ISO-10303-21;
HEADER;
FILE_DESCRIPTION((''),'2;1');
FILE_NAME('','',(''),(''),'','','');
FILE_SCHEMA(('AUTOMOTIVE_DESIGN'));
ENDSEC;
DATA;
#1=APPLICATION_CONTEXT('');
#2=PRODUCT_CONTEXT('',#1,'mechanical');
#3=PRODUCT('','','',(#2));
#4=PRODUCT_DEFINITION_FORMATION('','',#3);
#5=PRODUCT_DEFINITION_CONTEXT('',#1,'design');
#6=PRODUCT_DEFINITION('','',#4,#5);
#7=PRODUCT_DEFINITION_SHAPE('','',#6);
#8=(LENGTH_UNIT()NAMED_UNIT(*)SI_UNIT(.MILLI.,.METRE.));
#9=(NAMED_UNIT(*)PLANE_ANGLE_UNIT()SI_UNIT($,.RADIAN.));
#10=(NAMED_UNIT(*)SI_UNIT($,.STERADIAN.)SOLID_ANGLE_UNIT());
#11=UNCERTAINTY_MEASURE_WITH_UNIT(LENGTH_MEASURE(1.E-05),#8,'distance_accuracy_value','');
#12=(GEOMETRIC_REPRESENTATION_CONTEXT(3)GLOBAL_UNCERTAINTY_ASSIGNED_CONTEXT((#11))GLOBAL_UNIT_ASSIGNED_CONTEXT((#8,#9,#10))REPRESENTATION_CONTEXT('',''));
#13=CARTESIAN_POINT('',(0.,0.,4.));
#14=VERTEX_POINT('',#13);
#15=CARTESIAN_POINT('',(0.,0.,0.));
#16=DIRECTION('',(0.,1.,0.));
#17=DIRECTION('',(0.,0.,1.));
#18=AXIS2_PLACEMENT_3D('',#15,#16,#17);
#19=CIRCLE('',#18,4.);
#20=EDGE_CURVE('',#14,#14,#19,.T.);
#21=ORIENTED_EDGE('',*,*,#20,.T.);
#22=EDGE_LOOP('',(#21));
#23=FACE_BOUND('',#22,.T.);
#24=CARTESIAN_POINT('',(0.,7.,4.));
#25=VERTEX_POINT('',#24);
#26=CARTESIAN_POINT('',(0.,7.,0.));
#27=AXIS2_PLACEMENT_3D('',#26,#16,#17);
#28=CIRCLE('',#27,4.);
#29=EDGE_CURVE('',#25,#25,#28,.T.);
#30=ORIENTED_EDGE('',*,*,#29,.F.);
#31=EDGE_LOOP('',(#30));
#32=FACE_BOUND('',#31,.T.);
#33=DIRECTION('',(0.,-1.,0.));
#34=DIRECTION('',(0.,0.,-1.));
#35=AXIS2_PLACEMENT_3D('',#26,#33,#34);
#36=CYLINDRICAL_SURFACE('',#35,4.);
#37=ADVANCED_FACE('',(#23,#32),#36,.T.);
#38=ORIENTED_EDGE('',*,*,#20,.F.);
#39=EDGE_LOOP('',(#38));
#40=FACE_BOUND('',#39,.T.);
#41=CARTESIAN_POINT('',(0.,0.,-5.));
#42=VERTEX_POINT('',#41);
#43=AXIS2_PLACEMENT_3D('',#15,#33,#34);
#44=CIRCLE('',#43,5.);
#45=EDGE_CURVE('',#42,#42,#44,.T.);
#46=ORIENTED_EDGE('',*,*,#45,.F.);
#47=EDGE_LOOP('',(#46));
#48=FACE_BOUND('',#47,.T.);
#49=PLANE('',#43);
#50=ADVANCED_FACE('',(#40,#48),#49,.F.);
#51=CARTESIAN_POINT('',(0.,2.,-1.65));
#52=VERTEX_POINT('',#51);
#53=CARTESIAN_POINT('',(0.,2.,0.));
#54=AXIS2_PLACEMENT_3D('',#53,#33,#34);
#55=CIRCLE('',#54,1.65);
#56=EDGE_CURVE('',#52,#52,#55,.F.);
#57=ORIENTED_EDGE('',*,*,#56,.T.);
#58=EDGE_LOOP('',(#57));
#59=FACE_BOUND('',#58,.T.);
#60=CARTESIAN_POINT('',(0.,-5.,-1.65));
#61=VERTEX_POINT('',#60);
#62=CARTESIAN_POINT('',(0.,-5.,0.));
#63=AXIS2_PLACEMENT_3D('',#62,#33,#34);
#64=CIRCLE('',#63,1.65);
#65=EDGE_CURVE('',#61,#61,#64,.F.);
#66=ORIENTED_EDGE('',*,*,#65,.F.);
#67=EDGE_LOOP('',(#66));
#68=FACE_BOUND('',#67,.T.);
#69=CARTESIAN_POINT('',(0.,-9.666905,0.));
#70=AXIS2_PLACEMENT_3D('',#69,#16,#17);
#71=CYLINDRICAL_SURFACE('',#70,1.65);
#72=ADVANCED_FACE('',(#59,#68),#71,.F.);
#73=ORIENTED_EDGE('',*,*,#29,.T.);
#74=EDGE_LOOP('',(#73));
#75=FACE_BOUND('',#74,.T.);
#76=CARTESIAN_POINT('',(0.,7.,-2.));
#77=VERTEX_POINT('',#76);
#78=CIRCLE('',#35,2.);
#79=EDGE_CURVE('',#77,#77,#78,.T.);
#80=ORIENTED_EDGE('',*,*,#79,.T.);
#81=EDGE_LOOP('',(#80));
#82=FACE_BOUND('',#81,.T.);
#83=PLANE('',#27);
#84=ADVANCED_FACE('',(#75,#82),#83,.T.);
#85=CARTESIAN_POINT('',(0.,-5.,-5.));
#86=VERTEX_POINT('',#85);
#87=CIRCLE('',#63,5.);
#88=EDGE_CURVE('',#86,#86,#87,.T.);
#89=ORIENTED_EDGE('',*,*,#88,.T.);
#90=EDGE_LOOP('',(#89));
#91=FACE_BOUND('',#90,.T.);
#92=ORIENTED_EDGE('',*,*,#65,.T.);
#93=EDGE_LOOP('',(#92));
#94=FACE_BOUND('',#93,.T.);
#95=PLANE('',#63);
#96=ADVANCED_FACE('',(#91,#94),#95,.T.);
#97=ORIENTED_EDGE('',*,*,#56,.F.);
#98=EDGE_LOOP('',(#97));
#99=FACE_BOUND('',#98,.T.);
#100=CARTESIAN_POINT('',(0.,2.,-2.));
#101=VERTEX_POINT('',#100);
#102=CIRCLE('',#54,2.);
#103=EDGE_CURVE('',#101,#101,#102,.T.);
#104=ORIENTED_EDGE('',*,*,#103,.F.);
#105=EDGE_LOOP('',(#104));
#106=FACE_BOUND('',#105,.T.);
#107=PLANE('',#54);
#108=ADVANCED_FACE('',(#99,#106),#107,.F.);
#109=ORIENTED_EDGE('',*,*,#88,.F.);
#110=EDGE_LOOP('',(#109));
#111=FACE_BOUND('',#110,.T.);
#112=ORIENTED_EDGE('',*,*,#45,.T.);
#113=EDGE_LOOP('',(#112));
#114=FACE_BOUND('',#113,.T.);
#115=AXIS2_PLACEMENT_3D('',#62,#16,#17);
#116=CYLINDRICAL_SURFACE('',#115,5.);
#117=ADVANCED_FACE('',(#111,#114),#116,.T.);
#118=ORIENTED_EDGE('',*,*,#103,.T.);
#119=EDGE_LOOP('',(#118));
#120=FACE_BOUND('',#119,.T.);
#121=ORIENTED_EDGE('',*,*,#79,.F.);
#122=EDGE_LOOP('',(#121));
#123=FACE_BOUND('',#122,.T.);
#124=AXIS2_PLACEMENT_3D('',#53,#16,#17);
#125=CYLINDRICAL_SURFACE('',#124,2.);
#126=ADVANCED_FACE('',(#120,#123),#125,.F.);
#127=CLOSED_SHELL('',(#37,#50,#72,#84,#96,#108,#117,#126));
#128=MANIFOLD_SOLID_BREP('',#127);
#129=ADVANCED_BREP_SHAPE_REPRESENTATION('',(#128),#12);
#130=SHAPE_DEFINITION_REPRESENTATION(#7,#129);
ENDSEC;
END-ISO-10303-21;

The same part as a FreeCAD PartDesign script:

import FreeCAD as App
import Part
import Sketcher
from FreeCAD import Vector
Q = App.Units.Quantity

doc = App.newDocument("Part")
body = doc.addObject("PartDesign::Body", "Body")

sketch1 = doc.addObject("Sketcher::SketchObject", "Sketch")
body.addObject(sketch1)
sketch1.AttachmentSupport = (doc.XZ_Plane, [""])
sketch1.MapMode = "FlatFace"
sketch1.addGeometry(Part.Circle(Vector(0, 0, 0), Vector(0, 0, 1), 4), False)
sketch1.addConstraint([
    Sketcher.Constraint("Coincident", 0, 3, -1, 1),
    Sketcher.Constraint("Diameter", 0, Q("8 mm")),
])
pad1 = doc.addObject("PartDesign::Pad", "Pad")
body.addObject(pad1)
pad1.Profile = sketch1
pad1.Length = 7
pad1.Reversed = True

sketch2 = doc.addObject("Sketcher::SketchObject", "Sketch001")
body.addObject(sketch2)
sketch2.AttachmentSupport = (doc.XZ_Plane, [""])
sketch2.MapMode = "FlatFace"
sketch2.addGeometry(Part.Circle(Vector(0, 0, 0), Vector(0, 0, 1), 5), False)
sketch2.addConstraint([
    Sketcher.Constraint("Coincident", 0, 3, -1, 1),
    Sketcher.Constraint("Diameter", 0, Q("10 mm")),
])
pad2 = doc.addObject("PartDesign::Pad", "Pad001")
body.addObject(pad2)
pad2.Profile = sketch2
pad2.Length = 5

sketch3 = doc.addObject("Sketcher::SketchObject", "Sketch002")
body.addObject(sketch3)
sketch3.AttachmentSupport = (doc.XZ_Plane, [""])
sketch3.MapMode = "FlatFace"
sketch3.AttachmentOffset = App.Placement(Vector(0, 0, -7), App.Rotation())
sketch3.addGeometry(Part.Circle(Vector(0, 0, 0), Vector(0, 0, 1), 1.6), False)
sketch3.addConstraint([
    Sketcher.Constraint("Coincident", 0, 3, -1, 1),
    Sketcher.Constraint("Diameter", 0, Q("3.3 mm")),
])
pocket1 = doc.addObject("PartDesign::Pocket", "Pocket")
body.addObject(pocket1)
pocket1.Profile = sketch3
pocket1.Length = 12
pocket1.Reversed = True

sketch4 = doc.addObject("Sketcher::SketchObject", "Sketch003")
body.addObject(sketch4)
sketch4.AttachmentSupport = (doc.XZ_Plane, [""])
sketch4.MapMode = "FlatFace"
sketch4.AttachmentOffset = App.Placement(Vector(0, 0, -7), App.Rotation())
sketch4.addGeometry(Part.Circle(Vector(0, 0, 0), Vector(0, 0, 1), 2), False)
sketch4.addConstraint([
    Sketcher.Constraint("Coincident", 0, 3, -1, 1),
    Sketcher.Constraint("Diameter", 0, Q("4 mm")),
])
pocket2 = doc.addObject("PartDesign::Pocket", "Pocket001")
body.addObject(pocket2)
pocket2.Profile = sketch4
pocket2.Length = 5
pocket2.Reversed = True

doc.recompute()
